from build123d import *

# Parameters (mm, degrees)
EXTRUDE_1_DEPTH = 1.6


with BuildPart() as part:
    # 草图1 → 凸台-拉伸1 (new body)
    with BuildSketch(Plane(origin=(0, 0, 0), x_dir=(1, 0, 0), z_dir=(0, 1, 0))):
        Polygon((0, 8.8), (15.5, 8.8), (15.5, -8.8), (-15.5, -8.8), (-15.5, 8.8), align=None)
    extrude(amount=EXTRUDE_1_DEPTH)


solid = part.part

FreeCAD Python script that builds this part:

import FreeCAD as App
import Part
import Sketcher

doc = App.newDocument("Part")
body = doc.addObject("PartDesign::Body", "Body")

sketch1 = body.newObject("Sketcher::SketchObject", "Sketch")
sketch1.AttachmentSupport = (doc.getObject("XZ_Plane"), [""])
sketch1.MapMode = "FlatFace"
sketch1.addGeometry([
    Part.LineSegment(App.Vector(15.5, -8.8, 0), App.Vector(-15.5, -8.8, 0)),
    Part.LineSegment(App.Vector(-15.5, -8.8, 0), App.Vector(-15.5, 8.8, 0)),
    Part.LineSegment(App.Vector(-15.5, 8.8, 0), App.Vector(15.5, 8.8, 0)),
    Part.LineSegment(App.Vector(15.5, 8.8, 0), App.Vector(15.5, -8.8, 0)),
], False)
sketch1.addConstraint([
    Sketcher.Constraint("Coincident", 0, 2, 1, 1),
    Sketcher.Constraint("Coincident", 1, 2, 2, 1),
    Sketcher.Constraint("Coincident", 2, 2, 3, 1),
    Sketcher.Constraint("Coincident", 3, 2, 0, 1),
    Sketcher.Constraint("Horizontal", 0),
    Sketcher.Constraint("Vertical", 1),
    Sketcher.Constraint("Horizontal", 2),
    Sketcher.Constraint("Vertical", 3),
    Sketcher.Constraint("Symmetric", 0, 2, 2, 2, -1, 1),
    Sketcher.Constraint("DistanceX", 0, 2, 0, 1, 31.0),
    Sketcher.Constraint("DistanceY", 1, 1, 1, 2, 17.6),
])
pad1 = body.newObject("PartDesign::Pad", "Pad")
pad1.Profile = sketch1
pad1.Length = 1.6
pad1.Reversed = True

doc.recompute()
